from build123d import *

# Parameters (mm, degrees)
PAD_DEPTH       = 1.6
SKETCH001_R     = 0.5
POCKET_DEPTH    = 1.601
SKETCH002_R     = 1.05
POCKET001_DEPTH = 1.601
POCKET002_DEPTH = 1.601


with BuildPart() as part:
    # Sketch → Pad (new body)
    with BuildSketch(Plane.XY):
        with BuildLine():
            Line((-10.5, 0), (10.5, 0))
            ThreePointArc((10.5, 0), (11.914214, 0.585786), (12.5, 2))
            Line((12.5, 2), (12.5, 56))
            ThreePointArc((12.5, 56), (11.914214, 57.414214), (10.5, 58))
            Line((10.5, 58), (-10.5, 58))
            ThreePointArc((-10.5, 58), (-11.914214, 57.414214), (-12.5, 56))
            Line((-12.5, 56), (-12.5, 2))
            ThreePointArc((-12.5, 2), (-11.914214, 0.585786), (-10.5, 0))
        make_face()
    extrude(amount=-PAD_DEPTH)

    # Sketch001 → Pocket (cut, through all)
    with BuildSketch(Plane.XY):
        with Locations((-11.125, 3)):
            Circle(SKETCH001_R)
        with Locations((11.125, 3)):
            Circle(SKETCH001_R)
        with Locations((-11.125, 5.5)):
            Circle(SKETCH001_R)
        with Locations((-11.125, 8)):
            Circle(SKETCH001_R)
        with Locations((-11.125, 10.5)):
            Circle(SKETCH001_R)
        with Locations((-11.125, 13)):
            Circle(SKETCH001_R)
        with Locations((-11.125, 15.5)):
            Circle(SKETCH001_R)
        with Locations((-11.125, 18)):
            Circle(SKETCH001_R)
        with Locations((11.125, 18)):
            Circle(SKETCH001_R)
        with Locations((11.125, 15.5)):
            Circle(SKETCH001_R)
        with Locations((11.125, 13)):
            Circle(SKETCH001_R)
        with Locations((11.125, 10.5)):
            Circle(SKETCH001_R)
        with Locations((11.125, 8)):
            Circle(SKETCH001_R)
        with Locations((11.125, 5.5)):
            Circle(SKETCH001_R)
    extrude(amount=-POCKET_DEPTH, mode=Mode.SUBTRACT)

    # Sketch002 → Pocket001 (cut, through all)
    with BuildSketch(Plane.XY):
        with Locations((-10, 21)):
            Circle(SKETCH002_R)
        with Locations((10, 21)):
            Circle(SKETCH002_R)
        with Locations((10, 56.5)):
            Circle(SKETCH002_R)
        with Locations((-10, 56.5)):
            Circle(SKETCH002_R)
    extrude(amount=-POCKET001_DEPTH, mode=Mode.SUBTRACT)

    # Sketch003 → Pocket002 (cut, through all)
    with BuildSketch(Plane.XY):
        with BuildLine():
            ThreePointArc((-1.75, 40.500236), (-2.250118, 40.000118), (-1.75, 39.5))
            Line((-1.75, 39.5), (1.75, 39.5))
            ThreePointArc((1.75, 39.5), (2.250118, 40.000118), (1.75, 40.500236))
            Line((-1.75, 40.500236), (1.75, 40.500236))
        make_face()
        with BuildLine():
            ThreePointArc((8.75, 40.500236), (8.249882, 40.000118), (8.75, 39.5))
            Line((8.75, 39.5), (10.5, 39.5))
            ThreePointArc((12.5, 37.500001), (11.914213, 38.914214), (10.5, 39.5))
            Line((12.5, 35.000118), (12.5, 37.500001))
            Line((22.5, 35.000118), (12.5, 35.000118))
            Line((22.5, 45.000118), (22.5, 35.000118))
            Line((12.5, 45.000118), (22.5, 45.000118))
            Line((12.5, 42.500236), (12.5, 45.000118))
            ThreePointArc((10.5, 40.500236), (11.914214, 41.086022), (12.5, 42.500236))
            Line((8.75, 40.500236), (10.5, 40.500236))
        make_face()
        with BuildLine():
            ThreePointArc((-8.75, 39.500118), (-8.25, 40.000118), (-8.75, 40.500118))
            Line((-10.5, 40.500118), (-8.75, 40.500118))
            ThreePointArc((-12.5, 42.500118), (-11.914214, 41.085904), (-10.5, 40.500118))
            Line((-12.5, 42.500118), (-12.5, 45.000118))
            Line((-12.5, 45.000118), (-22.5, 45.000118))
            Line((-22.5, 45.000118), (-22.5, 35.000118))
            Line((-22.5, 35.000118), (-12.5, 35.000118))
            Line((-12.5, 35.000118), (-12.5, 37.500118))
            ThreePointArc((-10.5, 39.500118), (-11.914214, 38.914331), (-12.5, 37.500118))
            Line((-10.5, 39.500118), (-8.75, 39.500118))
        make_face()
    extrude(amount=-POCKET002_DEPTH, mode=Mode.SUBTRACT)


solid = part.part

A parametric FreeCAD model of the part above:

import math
import FreeCAD as App
import Part
import Sketcher

V = App.Vector
Q = App.Units.Quantity

doc = App.newDocument("Part")
params = doc.addObject("Spreadsheet::Sheet", "Params")
for row, (alias, value) in enumerate([
    ("sketch1_radius", "1.999999 mm"),
    ("sketch1_width", "21 mm"),
    ("sketch1_height", "54 mm"),
    ("pad1_length", "1.6 mm"),
    ("sketch2_diameter", "1 mm"),
    ("sketch3_diameter", "2.1 mm"),
    ("sketch4_radius", "2 mm"),
    ("sketch4_radius2", "0.5 mm"),
    ("sketch4_width", "10 mm"),
    ("sketch4_width2", "3.5 mm"),
    ("sketch4_width3", "1.75 mm"),
], start=1):
    params.set(f"A{row}", alias)
    params.set(f"B{row}", "=" + value)
    params.setAlias(f"B{row}", alias)

body = doc.addObject("PartDesign::Body", "Body")

# Sketch on XY plane
sketch1 = body.newObject("Sketcher::SketchObject", "Sketch")
sketch1.AttachmentSupport = (doc.getObject("XY_Plane"), [""])
sketch1.MapMode = "FlatFace"
sketch1.addGeometry([
    Part.LineSegment(V(-10.5, 0, 0), V(10.5, 0, 0)),  # 0
    Part.ArcOfCircle(Part.Circle(V(10.5, 2, 0), V(0, 0, 1), 2), math.radians(-90), math.radians(0)),  # 1
    Part.LineSegment(V(12.5, 2, 0), V(12.5, 56, 0)),  # 2
    Part.ArcOfCircle(Part.Circle(V(10.5, 56, 0), V(0, 0, 1), 2), math.radians(0), math.radians(90)),  # 3
    Part.LineSegment(V(10.5, 58, 0), V(-10.5, 58, 0)),  # 4
    Part.ArcOfCircle(Part.Circle(V(-10.5, 56, 0), V(0, 0, 1), 2), math.radians(90), math.radians(180)),  # 5
    Part.LineSegment(V(-12.5, 56, 0), V(-12.5, 2, 0)),  # 6
    Part.ArcOfCircle(Part.Circle(V(-10.5, 2, 0), V(0, 0, 1), 2), math.radians(180), math.radians(270)),  # 7
], False)
sketch1.addConstraint([
    Sketcher.Constraint("Tangent", 0, 2, 1, 1),
    Sketcher.Constraint("Tangent", 1, 2, 2, 1),
    Sketcher.Constraint("Tangent", 2, 2, 3, 1),
    Sketcher.Constraint("Tangent", 3, 2, 4, 1),
    Sketcher.Constraint("Tangent", 4, 2, 5, 1),
    Sketcher.Constraint("Tangent", 5, 2, 6, 1),
    Sketcher.Constraint("Tangent", 6, 2, 7, 1),
    Sketcher.Constraint("Tangent", 7, 2, 0, 1),
    Sketcher.Constraint("Horizontal", 0),
    Sketcher.Constraint("Vertical", 2),
    Sketcher.Constraint("Horizontal", 4),
    Sketcher.Constraint("Vertical", 6),
    Sketcher.Constraint("Equal", 1, 3),
    Sketcher.Constraint("Equal", 3, 5),
    Sketcher.Constraint("Equal", 5, 7),
    Sketcher.Constraint("Symmetric", 0, 2, 7, 2, -1, 1),
    Sketcher.Constraint("Radius", 1, Q("1.999999 mm")),
    Sketcher.Constraint("DistanceX", 0, 1, 0, 2, Q("21 mm")),
    Sketcher.Constraint("DistanceY", 2, 1, 2, 2, Q("54 mm")),
])
sketch1.setExpression("Constraints[16]", "Params.sketch1_radius")
sketch1.setExpression("Constraints[17]", "Params.sketch1_width")
sketch1.setExpression("Constraints[18]", "Params.sketch1_height")
pad1 = body.newObject("PartDesign::Pad", "Pad")
pad1.Profile = sketch1
pad1.setExpression("Length", "Params.pad1_length")
pad1.Reversed = True

# Sketch on XY plane
sketch2 = body.newObject("Sketcher::SketchObject", "Sketch001")
sketch2.AttachmentSupport = (doc.getObject("XY_Plane"), [""])
sketch2.MapMode = "FlatFace"
sketch2.addGeometry([
    Part.Circle(V(-11.1, 3, 0), V(0, 0, 1), 0.5),  # 0
    Part.Circle(V(11.1, 3, 0), V(0, 0, 1), 0.5),  # 1
    Part.Circle(V(-11.1, 5.5, 0), V(0, 0, 1), 0.5),  # 2
    Part.Circle(V(-11.1, 8, 0), V(0, 0, 1), 0.5),  # 3
    Part.Circle(V(-11.1, 10.5, 0), V(0, 0, 1), 0.5),  # 4
    Part.Circle(V(-11.1, 13, 0), V(0, 0, 1), 0.5),  # 5
    Part.Circle(V(-11.1, 15.5, 0), V(0, 0, 1), 0.5),  # 6
    Part.Circle(V(-11.1, 18, 0), V(0, 0, 1), 0.5),  # 7
    Part.Circle(V(11.1, 18, 0), V(0, 0, 1), 0.5),  # 8
    Part.Circle(V(11.1, 15.5, 0), V(0, 0, 1), 0.5),  # 9
    Part.Circle(V(11.1, 13, 0), V(0, 0, 1), 0.5),  # 10
    Part.Circle(V(11.1, 10.5, 0), V(0, 0, 1), 0.5),  # 11
    Part.Circle(V(11.1, 8, 0), V(0, 0, 1), 0.5),  # 12
    Part.Circle(V(11.1, 5.5, 0), V(0, 0, 1), 0.5),  # 13
], False)
sketch2.addConstraint([
    Sketcher.Constraint("Equal", 0, 1),
    Sketcher.Constraint("Equal", 1, 2),
    Sketcher.Constraint("Equal", 2, 3),
    Sketcher.Constraint("Equal", 3, 4),
    Sketcher.Constraint("Equal", 4, 5),
    Sketcher.Constraint("Equal", 5, 6),
    Sketcher.Constraint("Equal", 6, 7),
    Sketcher.Constraint("Equal", 7, 8),
    Sketcher.Constraint("Equal", 8, 9),
    Sketcher.Constraint("Equal", 9, 10),
    Sketcher.Constraint("Equal", 10, 11),
    Sketcher.Constraint("Equal", 11, 12),
    Sketcher.Constraint("Equal", 12, 13),
    Sketcher.Constraint("Symmetric", 0, 3, 1, 3, -2),
    Sketcher.Constraint("Symmetric", 7, 3, 8, 3, -2),
    Sketcher.Constraint("Symmetric", 6, 3, 9, 3, -2),
    Sketcher.Constraint("Symmetric", 5, 3, 10, 3, -2),
    Sketcher.Constraint("Symmetric", 4, 3, 11, 3, -2),
    Sketcher.Constraint("Symmetric", 3, 3, 12, 3, -2),
    Sketcher.Constraint("Symmetric", 2, 3, 13, 3, -2),
    Sketcher.Constraint("Vertical", 0, 3, 2, 3),
    Sketcher.Constraint("Vertical", 2, 3, 3, 3),
    Sketcher.Constraint("Vertical", 3, 3, 4, 3),
    Sketcher.Constraint("Vertical", 4, 3, 5, 3),
    Sketcher.Constraint("Vertical", 5, 3, 6, 3),
    Sketcher.Constraint("Vertical", 6, 3, 7, 3),
    Sketcher.Constraint("Diameter", 0, Q("1 mm")),
    Sketcher.Constraint("DistanceY", -1, 1, 0, 3, Q("3 mm")),
    Sketcher.Constraint("DistanceY", -1, 1, 3, 3, Q("8 mm")),
    Sketcher.Constraint("DistanceY", -1, 1, 5, 3, Q("13 mm")),
    Sketcher.Constraint("DistanceY", -1, 1, 7, 3, Q("18 mm")),
    Sketcher.Constraint("DistanceY", 2, 3, 4, 3, Q("5 mm")),
    Sketcher.Constraint("DistanceY", 4, 3, 6, 3, Q("5 mm")),
    Sketcher.Constraint("DistanceY", -1, 1, 2, 3, Q("5.5 mm")),
    Sketcher.Constraint("DistanceX", 0, 3, 1, 3, Q("22.25 mm")),
])
sketch2.setExpression("Constraints[26]", "Params.sketch2_diameter")
pocket1 = body.newObject("PartDesign::Pocket", "Pocket")
pocket1.Profile = sketch2
pocket1.Type = "ThroughAll"

# Sketch on XY plane
sketch3 = body.newObject("Sketcher::SketchObject", "Sketch002")
sketch3.AttachmentSupport = (doc.getObject("XY_Plane"), [""])
sketch3.MapMode = "FlatFace"
sketch3.addGeometry([
    Part.Circle(V(-10, 21, 0), V(0, 0, 1), 1.1),
    Part.Circle(V(10, 21, 0), V(0, 0, 1), 1.1),
    Part.Circle(V(10, 56.5, 0), V(0, 0, 1), 1.1),
    Part.Circle(V(-10, 56.5, 0), V(0, 0, 1), 1.1),
], False)
sketch3.addConstraint([
    Sketcher.Constraint("Equal", 0, 1),
    Sketcher.Constraint("Equal", 1, 2),
    Sketcher.Constraint("Equal", 2, 3),
    Sketcher.Constraint("Symmetric", 0, 3, 1, 3, -2),
    Sketcher.Constraint("Symmetric", 2, 3, 3, 3, -2),
    Sketcher.Constraint("Vertical", 1, 3, 2, 3),
    Sketcher.Constraint("Diameter", 0, Q("2.1 mm")),
    Sketcher.Constraint("DistanceX", 0, 3, -1, 1, Q("10 mm")),
    Sketcher.Constraint("DistanceY", -1, 1, 0, 3, Q("21 mm")),
    Sketcher.Constraint("DistanceY", -1, 1, 2, 3, Q("56.5 mm")),
])
sketch3.setExpression("Constraints[6]", "Params.sketch3_diameter")
pocket2 = body.newObject("PartDesign::Pocket", "Pocket001")
pocket2.Profile = sketch3
pocket2.Type = "ThroughAll"

# Sketch on XY plane
sketch4 = body.newObject("Sketcher::SketchObject", "Sketch003")
sketch4.AttachmentSupport = (doc.getObject("XY_Plane"), [""])
sketch4.MapMode = "FlatFace"
sketch4.addGeometry([
    Part.ArcOfCircle(Part.Circle(V(-1.8, 40, 0), V(0, 0, 1), 0.5), math.radians(90), math.radians(270)),  # 0
    Part.LineSegment(V(-1.8, 39.5, 0), V(1.8, 39.5, 0)),  # 1
    Part.ArcOfCircle(Part.Circle(V(1.8, 40, 0), V(0, 0, 1), 0.5), math.radians(-90), math.radians(90)),  # 2
    Part.LineSegment(V(1.8, 40.5, 0), V(-1.8, 40.5, 0)),  # 3
    Part.ArcOfCircle(Part.Circle(V(8.8, 40, 0), V(0, 0, 1), 0.5), math.radians(90), math.radians(270)),  # 4
    Part.LineSegment(V(8.8, 39.5, 0), V(10.5, 39.5, 0)),  # 5
    Part.ArcOfCircle(Part.Circle(V(10.5, 37.5, 0), V(0, 0, 1), 2), math.radians(0), math.radians(90)),  # 6
    Part.LineSegment(V(12.5, 37.5, 0), V(12.5, 35, 0)),  # 7
    Part.LineSegment(V(12.5, 35, 0), V(22.5, 35, 0)),  # 8
    Part.LineSegment(V(22.5, 35, 0), V(22.5, 45, 0)),  # 9
    Part.LineSegment(V(22.5, 45, 0), V(12.5, 45, 0)),  # 10
    Part.LineSegment(V(12.5, 45, 0), V(12.5, 42.5, 0)),  # 11
    Part.ArcOfCircle(Part.Circle(V(10.5, 42.5, 0), V(0, 0, 1), 2), math.radians(-90), math.radians(0)),  # 12
    Part.LineSegment(V(10.5, 40.5, 0), V(8.8, 40.5, 0)),  # 13
    Part.ArcOfCircle(Part.Circle(V(-8.8, 40, 0), V(0, 0, 1), 0.5), math.radians(-90), math.radians(90)),  # 14
    Part.LineSegment(V(-8.8, 40.5, 0), V(-10.5, 40.5, 0)),  # 15
    Part.ArcOfCircle(Part.Circle(V(-10.5, 42.5, 0), V(0, 0, 1), 2), math.radians(180), math.radians(270)),  # 16
    Part.LineSegment(V(-12.5, 42.5, 0), V(-12.5, 45, 0)),  # 17
    Part.LineSegment(V(-12.5, 45, 0), V(-22.5, 45, 0)),  # 18
    Part.LineSegment(V(-22.5, 45, 0), V(-22.5, 35, 0)),  # 19
    Part.LineSegment(V(-22.5, 35, 0), V(-12.5, 35, 0)),  # 20
    Part.LineSegment(V(-12.5, 35, 0), V(-12.5, 37.5, 0)),  # 21
    Part.ArcOfCircle(Part.Circle(V(-10.5, 37.5, 0), V(0, 0, 1), 2), math.radians(90), math.radians(180)),  # 22
    Part.LineSegment(V(-10.5, 39.5, 0), V(-8.8, 39.5, 0)),  # 23
], False)
sketch4.addConstraint([
    Sketcher.Constraint("Tangent", 0, 2, 1, 1),
    Sketcher.Constraint("Tangent", 1, 2, 2, 1),
    Sketcher.Constraint("Tangent", 2, 2, 3, 1),
    Sketcher.Constraint("Tangent", 3, 2, 0, 1),
    Sketcher.Constraint("Tangent", 4, 2, 5, 1),
    Sketcher.Constraint("Tangent", 5, 2, 6, 2),
    Sketcher.Constraint("Tangent", 6, 1, 7, 1),
    Sketcher.Constraint("Coincident", 7, 2, 8, 1),
    Sketcher.Constraint("Coincident", 8, 2, 9, 1),
    Sketcher.Constraint("Coincident", 9, 2, 10, 1),
    Sketcher.Constraint("Coincident", 10, 2, 11, 1),
    Sketcher.Constraint("Tangent", 11, 2, 12, 2),
    Sketcher.Constraint("Tangent", 12, 1, 13, 1),
    Sketcher.Constraint("Tangent", 13, 2, 4, 1),
    Sketcher.Constraint("Tangent", 14, 2, 15, 1),
    Sketcher.Constraint("Tangent", 15, 2, 16, 2),
    Sketcher.Constraint("Tangent", 16, 1, 17, 1),
    Sketcher.Constraint("Coincident", 17, 2, 18, 1),
    Sketcher.Constraint("Coincident", 18, 2, 19, 1),
    Sketcher.Constraint("Coincident", 19, 2, 20, 1),
    Sketcher.Constraint("Coincident", 20, 2, 21, 1),
    Sketcher.Constraint("Tangent", 21, 2, 22, 2),
    Sketcher.Constraint("Tangent", 22, 1, 23, 1),
    Sketcher.Constraint("Tangent", 23, 2, 14, 1),
    Sketcher.Constraint("Horizontal", 1),
    Sketcher.Constraint("Horizontal", 3),
    Sketcher.Constraint("Horizontal", 5),
    Sketcher.Constraint("Vertical", 7),
    Sketcher.Constraint("Horizontal", 8),
    Sketcher.Constraint("Vertical", 9),
    Sketcher.Constraint("Horizontal", 10),
    Sketcher.Constraint("Vertical", 11),
    Sketcher.Constraint("Horizontal", 13),
    Sketcher.Constraint("Horizontal", 15),
    Sketcher.Constraint("Vertical", 17),
    Sketcher.Constraint("Horizontal", 18),
    Sketcher.Constraint("Vertical", 19),
    Sketcher.Constraint("Horizontal", 20),
    Sketcher.Constraint("Vertical", 21),
    Sketcher.Constraint("Horizontal", 23),
    Sketcher.Constraint("Equal", 2, 4),
    Sketcher.Constraint("Equal", 6, 12),
    Sketcher.Constraint("Equal", 12, 16),
    Sketcher.Constraint("Equal", 16, 22),
    Sketcher.Constraint("Symmetric", 4, 3, 14, 3, -2),
    Sketcher.Constraint("Symmetric", 10, 2, 17, 2, -2),
    Sketcher.Constraint("Symmetric", 8, 2, 19, 2, -2),
    Sketcher.Constraint("Horizontal", 2, 3, 4, 3),
    Sketcher.Constraint("Vertical", 6, 3, 12, 3),
    Sketcher.Constraint("Vertical", 16, 3, 22, 3),
    Sketcher.Constraint("Equal", 20, 9),
    Sketcher.Constraint("Equal", 7, 11),
    Sketcher.Constraint("Radius", 6, Q("2 mm")),
    Sketcher.Constraint("Radius", 14, Q("0.5 mm")),
    Sketcher.Constraint("DistanceX", 8, 1, 8, 2, Q("10 mm")),
    Sketcher.Constraint("DistanceX", 1, 1, 1, 2, Q("3.5 mm")),
    Sketcher.Constraint("DistanceX", 2, 3, 4, 3, Q("7 mm")),
    Sketcher.Constraint("DistanceX", 14, 3, 0, 3, Q("7 mm")),
    Sketcher.Constraint("DistanceX", 5, 1, 5, 2, Q("1.75 mm")),
    Sketcher.Constraint("DistanceY", -1, 1, 6, 3, Q("37.5 mm")),
    Sketcher.Constraint("Radius", 0, Q("0.500118 mm")),
])
sketch4.setExpression("Constraints[52]", "Params.sketch4_radius")
sketch4.setExpression("Constraints[53]", "Params.sketch4_radius2")
sketch4.setExpression("Constraints[54]", "Params.sketch4_width")
sketch4.setExpression("Constraints[55]", "Params.sketch4_width2")
sketch4.setExpression("Constraints[58]", "Params.sketch4_width3")
pocket3 = body.newObject("PartDesign::Pocket", "Pocket002")
pocket3.Profile = sketch4
pocket3.Type = "ThroughAll"

doc.recompute()
